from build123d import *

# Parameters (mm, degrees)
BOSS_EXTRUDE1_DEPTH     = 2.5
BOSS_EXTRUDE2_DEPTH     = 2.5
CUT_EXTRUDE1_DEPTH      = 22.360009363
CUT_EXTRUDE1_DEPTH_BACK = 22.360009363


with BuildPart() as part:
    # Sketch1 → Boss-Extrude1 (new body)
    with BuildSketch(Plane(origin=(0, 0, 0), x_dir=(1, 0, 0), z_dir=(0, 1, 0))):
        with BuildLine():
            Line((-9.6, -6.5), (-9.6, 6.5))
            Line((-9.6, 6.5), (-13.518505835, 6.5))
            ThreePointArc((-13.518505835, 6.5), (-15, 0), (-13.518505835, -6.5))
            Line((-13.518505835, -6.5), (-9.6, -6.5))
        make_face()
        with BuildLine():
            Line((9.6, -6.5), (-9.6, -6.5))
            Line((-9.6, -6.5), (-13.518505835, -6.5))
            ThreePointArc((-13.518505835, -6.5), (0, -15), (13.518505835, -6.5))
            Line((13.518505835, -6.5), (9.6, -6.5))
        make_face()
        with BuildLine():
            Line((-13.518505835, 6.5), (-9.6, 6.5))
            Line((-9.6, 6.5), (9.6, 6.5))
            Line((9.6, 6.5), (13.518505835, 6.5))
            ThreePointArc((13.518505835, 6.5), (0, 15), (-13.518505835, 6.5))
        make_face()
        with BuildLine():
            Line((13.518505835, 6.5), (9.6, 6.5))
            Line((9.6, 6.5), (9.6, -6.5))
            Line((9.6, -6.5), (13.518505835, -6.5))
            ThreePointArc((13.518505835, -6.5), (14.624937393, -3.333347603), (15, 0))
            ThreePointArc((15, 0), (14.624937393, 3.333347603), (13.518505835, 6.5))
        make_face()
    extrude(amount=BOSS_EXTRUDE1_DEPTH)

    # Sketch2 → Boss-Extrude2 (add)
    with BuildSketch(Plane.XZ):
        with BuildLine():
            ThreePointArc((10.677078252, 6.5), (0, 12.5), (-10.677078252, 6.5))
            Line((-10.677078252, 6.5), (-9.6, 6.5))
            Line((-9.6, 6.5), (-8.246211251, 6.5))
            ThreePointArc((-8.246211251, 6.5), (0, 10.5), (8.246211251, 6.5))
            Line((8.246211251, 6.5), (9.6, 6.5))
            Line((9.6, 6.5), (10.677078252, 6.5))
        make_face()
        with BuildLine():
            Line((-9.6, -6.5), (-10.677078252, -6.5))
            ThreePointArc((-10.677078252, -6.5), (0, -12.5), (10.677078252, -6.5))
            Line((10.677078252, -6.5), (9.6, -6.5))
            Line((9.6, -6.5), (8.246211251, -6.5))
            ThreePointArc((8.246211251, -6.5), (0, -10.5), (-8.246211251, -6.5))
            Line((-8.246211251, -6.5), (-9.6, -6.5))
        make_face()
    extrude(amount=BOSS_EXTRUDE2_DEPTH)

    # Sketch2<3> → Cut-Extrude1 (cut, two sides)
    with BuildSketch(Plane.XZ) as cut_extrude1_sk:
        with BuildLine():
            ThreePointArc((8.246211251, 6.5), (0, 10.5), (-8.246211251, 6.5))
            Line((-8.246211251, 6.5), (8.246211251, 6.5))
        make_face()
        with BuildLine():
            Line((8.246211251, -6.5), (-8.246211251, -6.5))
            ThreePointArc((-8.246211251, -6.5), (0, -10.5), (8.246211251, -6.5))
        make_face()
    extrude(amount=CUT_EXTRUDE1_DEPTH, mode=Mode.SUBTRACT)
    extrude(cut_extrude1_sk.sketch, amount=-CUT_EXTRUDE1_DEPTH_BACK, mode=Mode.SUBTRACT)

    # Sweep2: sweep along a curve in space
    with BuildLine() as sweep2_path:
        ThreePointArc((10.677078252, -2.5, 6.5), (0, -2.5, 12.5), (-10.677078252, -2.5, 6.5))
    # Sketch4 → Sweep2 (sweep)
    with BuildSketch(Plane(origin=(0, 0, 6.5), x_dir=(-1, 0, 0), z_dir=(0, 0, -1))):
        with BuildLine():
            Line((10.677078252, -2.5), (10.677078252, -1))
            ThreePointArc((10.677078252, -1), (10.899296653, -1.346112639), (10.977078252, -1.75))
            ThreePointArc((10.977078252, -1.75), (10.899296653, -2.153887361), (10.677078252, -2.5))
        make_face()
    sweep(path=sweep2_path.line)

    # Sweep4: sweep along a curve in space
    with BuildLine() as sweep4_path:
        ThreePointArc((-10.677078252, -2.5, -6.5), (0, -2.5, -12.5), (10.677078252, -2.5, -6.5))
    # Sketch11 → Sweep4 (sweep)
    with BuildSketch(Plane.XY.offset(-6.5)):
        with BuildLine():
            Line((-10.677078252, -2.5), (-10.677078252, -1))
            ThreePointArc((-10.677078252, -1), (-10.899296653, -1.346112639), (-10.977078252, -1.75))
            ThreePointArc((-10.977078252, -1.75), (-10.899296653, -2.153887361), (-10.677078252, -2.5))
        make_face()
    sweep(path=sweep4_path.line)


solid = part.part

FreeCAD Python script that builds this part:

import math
import FreeCAD as App
import Part
import Sketcher
from FreeCAD import Vector

doc = App.newDocument("Part")
params = doc.addObject("Spreadsheet::Sheet", "Params")
for row, (alias, value) in enumerate([
    ("sketch1_radius", "15 mm"),
    ("sketch1_height", "13 mm"),
    ("sketch1_width", "19.2 mm"),
    ("pad1_length", "2.5 mm"),
    ("sketch2_radius", "12.5 mm"),
    ("sketch2_radius2", "10.5 mm"),
    ("pad2_length", "2.5 mm"),
    ("sketch3_radius", "10.5 mm"),
    ("sketch4_height", "1.5 mm"),
    ("sketch5_radius", "12.5 mm"),
    ("sketch6_height", "1.5 mm"),
    ("sketch7_radius", "12.5 mm"),
], start=1):
    params.set(f"A{row}", alias)
    params.set(f"B{row}", "=" + value)
    params.setAlias(f"B{row}", alias)

body = doc.addObject("PartDesign::Body", "Body")

sketch1 = body.newObject("Sketcher::SketchObject", "Sketch")
sketch1.AttachmentSupport = (doc.getObject("XZ_Plane"), [""])
sketch1.MapMode = "FlatFace"
sketch1.addGeometry([
    Part.ArcOfCircle(Part.Circle(Vector(0, 0, 0), Vector(0, 0, 1), 15), math.radians(-154), math.radians(-26)),
    Part.ArcOfCircle(Part.Circle(Vector(0, 0, 0), Vector(0, 0, 1), 15), math.radians(154), math.radians(206)),
    Part.ArcOfCircle(Part.Circle(Vector(0, 0, 0), Vector(0, 0, 1), 15), math.radians(26), math.radians(154)),
    Part.ArcOfCircle(Part.Circle(Vector(0, 0, 0), Vector(0, 0, 1), 15), math.radians(0), math.radians(26)),
    Part.ArcOfCircle(Part.Circle(Vector(0, 0, 0), Vector(0, 0, 1), 15), math.radians(-26), math.radians(0)),
    Part.LineSegment(Vector(-10, 6, 0), Vector(-10, -6, 0)),
    Part.LineSegment(Vector(-10, -6, 0), Vector(10, -6, 0)),
    Part.LineSegment(Vector(10, -6, 0), Vector(10, 6, 0)),
    Part.LineSegment(Vector(10, 6, 0), Vector(-10, 6, 0)),
], False)
sketch1.addConstraint([
    Sketcher.Constraint("Tangent", 0, 1, 1, 2),
    Sketcher.Constraint("Tangent", 1, 1, 2, 2),
    Sketcher.Constraint("Tangent", 2, 1, 3, 2),
    Sketcher.Constraint("Tangent", 3, 1, 4, 2),
    Sketcher.Constraint("Tangent", 4, 1, 0, 2),
    Sketcher.Constraint("Coincident", 5, 2, 6, 1),
    Sketcher.Constraint("Coincident", 6, 2, 7, 1),
    Sketcher.Constraint("Coincident", 7, 2, 8, 1),
    Sketcher.Constraint("Coincident", 8, 2, 5, 1),
    Sketcher.Constraint("Vertical", 5),
    Sketcher.Constraint("Horizontal", 6),
    Sketcher.Constraint("Vertical", 7),
    Sketcher.Constraint("Horizontal", 8),
    Sketcher.Constraint("Coincident", 0, 3, -1, 1),
    Sketcher.Constraint("Coincident", 2, 3, -1, 1),
    Sketcher.Constraint("Symmetric", 5, 2, 7, 2, -1, 1),
    Sketcher.Constraint("PointOnObject", 3, 1, -1),
    Sketcher.Constraint("Horizontal", 1, 1, 2, 1),
    Sketcher.Constraint("Horizontal", 0, 1, 4, 1),
    Sketcher.Constraint("Horizontal", 4, 1, 5, 2),
    Sketcher.Constraint("Horizontal", 2, 1, 7, 2),
    Sketcher.Constraint("Radius", 0, 15.0),
    Sketcher.Constraint("DistanceY", 5, 2, 5, 1, 13.0),
    Sketcher.Constraint("DistanceX", 6, 1, 6, 2, 19.2),
])
sketch1.setExpression("Constraints[21]", "Params.sketch1_radius")
sketch1.setExpression("Constraints[22]", "Params.sketch1_height")
sketch1.setExpression("Constraints[23]", "Params.sketch1_width")
pad1 = body.newObject("PartDesign::Pad", "Pad")
pad1.Profile = sketch1
pad1.setExpression("Length", "Params.pad1_length")
pad1.Reversed = True

sketch2 = body.newObject("Sketcher::SketchObject", "Sketch001")
sketch2.AttachmentSupport = (doc.getObject("XZ_Plane"), [""])
sketch2.MapMode = "FlatFace"
sketch2.addGeometry([
    Part.ArcOfCircle(Part.Circle(Vector(0, 0, 0), Vector(0, 0, 1), 12.5), math.radians(31), math.radians(149)),
    Part.LineSegment(Vector(-10.7, 6.5, 0), Vector(-8.2, 6.5, 0)),
    Part.ArcOfCircle(Part.Circle(Vector(0, 0, 0), Vector(0, 0, 1), 10.5), math.radians(38), math.radians(142)),
    Part.LineSegment(Vector(8.2, 6.5, 0), Vector(10.7, 6.5, 0)),
    Part.ArcOfCircle(Part.Circle(Vector(0, 0, 0), Vector(0, 0, 1), 12.5), math.radians(-149), math.radians(-31)),
    Part.LineSegment(Vector(10.7, -6.5, 0), Vector(8.2, -6.5, 0)),
    Part.ArcOfCircle(Part.Circle(Vector(0, 0, 0), Vector(0, 0, 1), 10.5), math.radians(-142), math.radians(-38)),
    Part.LineSegment(Vector(-8.2, -6.5, 0), Vector(-10.7, -6.5, 0)),
], False)
sketch2.addConstraint([
    Sketcher.Constraint("Coincident", 0, 2, 1, 1),
    Sketcher.Constraint("Coincident", 1, 2, 2, 2),
    Sketcher.Constraint("Coincident", 2, 1, 3, 1),
    Sketcher.Constraint("Coincident", 3, 2, 0, 1),
    Sketcher.Constraint("Coincident", 4, 2, 5, 1),
    Sketcher.Constraint("Coincident", 5, 2, 6, 2),
    Sketcher.Constraint("Coincident", 6, 1, 7, 1),
    Sketcher.Constraint("Coincident", 7, 2, 4, 1),
    Sketcher.Constraint("Horizontal", 1),
    Sketcher.Constraint("Horizontal", 3),
    Sketcher.Constraint("Horizontal", 5),
    Sketcher.Constraint("Horizontal", 7),
    Sketcher.Constraint("Coincident", 0, 3, -1, 1),
    Sketcher.Constraint("Coincident", 2, 3, -1, 1),
    Sketcher.Constraint("Coincident", 4, 3, -1, 1),
    Sketcher.Constraint("Coincident", 6, 3, -1, 1),
    Sketcher.Constraint("Equal", 0, 4),
    Sketcher.Constraint("Equal", 2, 6),
    Sketcher.Constraint("Horizontal", 1, 2, 2, 1),
    Sketcher.Constraint("Horizontal", 5, 2, 6, 1),
    Sketcher.Constraint("Vertical", 3, 2, 4, 2),
    Sketcher.Constraint("Radius", 0, 12.5),
    Sketcher.Constraint("Radius", 2, 10.5),
    Sketcher.Constraint("DistanceY", 4, 2, 3, 2, 13.0),
])
sketch2.setExpression("Constraints[21]", "Params.sketch2_radius")
sketch2.setExpression("Constraints[22]", "Params.sketch2_radius2")
pad2 = body.newObject("PartDesign::Pad", "Pad001")
pad2.Profile = sketch2
pad2.setExpression("Length", "Params.pad2_length")

sketch3 = body.newObject("Sketcher::SketchObject", "Sketch002")
sketch3.AttachmentSupport = (doc.getObject("XZ_Plane"), [""])
sketch3.MapMode = "FlatFace"
sketch3.addGeometry([
    Part.ArcOfCircle(Part.Circle(Vector(0, 0, 0), Vector(0, 0, 1), 10), math.radians(38), math.radians(142)),
    Part.LineSegment(Vector(-8, 6, 0), Vector(8, 6, 0)),
    Part.LineSegment(Vector(8, -6, 0), Vector(-8, -6, 0)),
    Part.ArcOfCircle(Part.Circle(Vector(0, 0, 0), Vector(0, 0, 1), 10), math.radians(-142), math.radians(-38)),
], False)
sketch3.addConstraint([
    Sketcher.Constraint("Coincident", 0, 1, 1, 2),
    Sketcher.Constraint("Coincident", 1, 1, 0, 2),
    Sketcher.Constraint("Coincident", 2, 1, 3, 2),
    Sketcher.Constraint("Coincident", 3, 1, 2, 2),
    Sketcher.Constraint("Horizontal", 1),
    Sketcher.Constraint("Horizontal", 2),
    Sketcher.Constraint("Coincident", 0, 3, -1, 1),
    Sketcher.Constraint("Coincident", 3, 3, -1, 1),
    Sketcher.Constraint("Equal", 0, 3),
    Sketcher.Constraint("Vertical", 0, 1, 2, 1),
    Sketcher.Constraint("Radius", 0, 10.5),
    Sketcher.Constraint("DistanceY", 2, 1, 0, 1, 13.0),
])
sketch3.setExpression("Constraints[10]", "Params.sketch3_radius")
pocket1 = body.newObject("PartDesign::Pocket", "Pocket")
pocket1.Profile = sketch3
pocket1.Type = "ThroughAll"
pocket1.Midplane = True

sketch4 = body.newObject("Sketcher::SketchObject", "Sketch003")
sketch4.AttachmentSupport = (doc.getObject("XY_Plane"), [""])
sketch4.MapMode = "FlatFace"
sketch4.AttachmentOffset = App.Placement(Vector(0, 0, 6.5), App.Rotation())
sketch4.addGeometry([
    Part.LineSegment(Vector(-10.7, -1, 0), Vector(-10.7, -2.5, 0)),
    Part.ArcOfCircle(Part.Circle(Vector(-9.9, -1.7, 0), Vector(0, 0, 1), 1.1), math.radians(-180), math.radians(-136)),
    Part.ArcOfCircle(Part.Circle(Vector(-9.9, -1.8, 0), Vector(0, 0, 1), 1.1), math.radians(136), math.radians(180)),
], False)
sketch4.addConstraint([
    Sketcher.Constraint("Coincident", 0, 2, 1, 2),
    Sketcher.Constraint("Tangent", 1, 1, 2, 2),
    Sketcher.Constraint("Coincident", 2, 1, 0, 1),
    Sketcher.Constraint("Vertical", 0),
    Sketcher.Constraint("Equal", 1, 2),
    Sketcher.Constraint("Horizontal", 2, 3, 1, 1),
    Sketcher.Constraint("DistanceY", 0, 2, 0, 1, 1.5),
    Sketcher.Constraint("DistanceY", 2, 1, -1, 1, 1.0),
    Sketcher.Constraint("Radius", 1, 1.0875),
    Sketcher.Constraint("DistanceX", 1, 3, -1, 1, 9.889578),
])
sketch4.setExpression("Constraints[6]", "Params.sketch4_height")

sketch5 = body.newObject("Sketcher::SketchObject", "Sketch004")
sketch5.AttachmentSupport = (doc.getObject("XZ_Plane"), [""])
sketch5.MapMode = "FlatFace"
sketch5.AttachmentOffset = App.Placement(Vector(0, 0, 2.5), App.Rotation())
sketch5.addGeometry(Part.ArcOfCircle(Part.Circle(Vector(0, 0, 0), Vector(0, 0, 1), 12), math.radians(31), math.radians(149)), False)
sketch5.addConstraint([
    Sketcher.Constraint("Coincident", 0, 3, -1, 1),
    Sketcher.Constraint("Radius", 0, 12.5),
    Sketcher.Constraint("DistanceY", -1, 1, 0, 1, 6.5),
    Sketcher.Constraint("DistanceY", -1, 1, 0, 2, 6.5),
])
sketch5.setExpression("Constraints[1]", "Params.sketch5_radius")
doc.recompute()

additivepipe = body.newObject("PartDesign::AdditivePipe", "AdditivePipe")
additivepipe.Profile = sketch4
additivepipe.Spine = (sketch5, ["Edge1"])

sketch6 = body.newObject("Sketcher::SketchObject", "Sketch005")
sketch6.AttachmentSupport = (doc.getObject("XY_Plane"), [""])
sketch6.MapMode = "FlatFace"
sketch6.AttachmentOffset = App.Placement(Vector(0, 0, -6.5), App.Rotation())
sketch6.addGeometry([
    Part.LineSegment(Vector(-10.7, -2.5, 0), Vector(-10.7, -1, 0)),
    Part.ArcOfCircle(Part.Circle(Vector(-9.9, -1.8, 0), Vector(0, 0, 1), 1.1), math.radians(136), math.radians(180)),
    Part.ArcOfCircle(Part.Circle(Vector(-9.9, -1.7, 0), Vector(0, 0, 1), 1.1), math.radians(-180), math.radians(-136)),
], False)
sketch6.addConstraint([
    Sketcher.Constraint("Coincident", 0, 2, 1, 1),
    Sketcher.Constraint("Tangent", 1, 2, 2, 1),
    Sketcher.Constraint("Coincident", 2, 2, 0, 1),
    Sketcher.Constraint("Vertical", 0),
    Sketcher.Constraint("Equal", 1, 2),
    Sketcher.Constraint("Horizontal", 2, 3, 1, 2),
    Sketcher.Constraint("DistanceY", 0, 1, 0, 2, 1.5),
    Sketcher.Constraint("DistanceY", 0, 2, -1, 1, 1.0),
    Sketcher.Constraint("Radius", 1, 1.0875),
    Sketcher.Constraint("DistanceX", 1, 3, -1, 1, 9.889578),
])
sketch6.setExpression("Constraints[6]", "Params.sketch6_height")

sketch7 = body.newObject("Sketcher::SketchObject", "Sketch006")
sketch7.AttachmentSupport = (doc.getObject("XZ_Plane"), [""])
sketch7.MapMode = "FlatFace"
sketch7.AttachmentOffset = App.Placement(Vector(0, 0, 2.5), App.Rotation())
sketch7.addGeometry(Part.ArcOfCircle(Part.Circle(Vector(0, 0, 0), Vector(0, 0, 1), 12), math.radians(-149), math.radians(-31)), False)
sketch7.addConstraint([
    Sketcher.Constraint("Coincident", 0, 3, -1, 1),
    Sketcher.Constraint("Radius", 0, 12.5),
    Sketcher.Constraint("DistanceY", 0, 1, -1, 1, 6.5),
    Sketcher.Constraint("DistanceY", 0, 2, -1, 1, 6.5),
])
sketch7.setExpression("Constraints[1]", "Params.sketch7_radius")
doc.recompute()

additivepipe2 = body.newObject("PartDesign::AdditivePipe", "AdditivePipe001")
additivepipe2.Profile = sketch6
additivepipe2.Spine = (sketch7, ["Edge1"])

doc.recompute()
